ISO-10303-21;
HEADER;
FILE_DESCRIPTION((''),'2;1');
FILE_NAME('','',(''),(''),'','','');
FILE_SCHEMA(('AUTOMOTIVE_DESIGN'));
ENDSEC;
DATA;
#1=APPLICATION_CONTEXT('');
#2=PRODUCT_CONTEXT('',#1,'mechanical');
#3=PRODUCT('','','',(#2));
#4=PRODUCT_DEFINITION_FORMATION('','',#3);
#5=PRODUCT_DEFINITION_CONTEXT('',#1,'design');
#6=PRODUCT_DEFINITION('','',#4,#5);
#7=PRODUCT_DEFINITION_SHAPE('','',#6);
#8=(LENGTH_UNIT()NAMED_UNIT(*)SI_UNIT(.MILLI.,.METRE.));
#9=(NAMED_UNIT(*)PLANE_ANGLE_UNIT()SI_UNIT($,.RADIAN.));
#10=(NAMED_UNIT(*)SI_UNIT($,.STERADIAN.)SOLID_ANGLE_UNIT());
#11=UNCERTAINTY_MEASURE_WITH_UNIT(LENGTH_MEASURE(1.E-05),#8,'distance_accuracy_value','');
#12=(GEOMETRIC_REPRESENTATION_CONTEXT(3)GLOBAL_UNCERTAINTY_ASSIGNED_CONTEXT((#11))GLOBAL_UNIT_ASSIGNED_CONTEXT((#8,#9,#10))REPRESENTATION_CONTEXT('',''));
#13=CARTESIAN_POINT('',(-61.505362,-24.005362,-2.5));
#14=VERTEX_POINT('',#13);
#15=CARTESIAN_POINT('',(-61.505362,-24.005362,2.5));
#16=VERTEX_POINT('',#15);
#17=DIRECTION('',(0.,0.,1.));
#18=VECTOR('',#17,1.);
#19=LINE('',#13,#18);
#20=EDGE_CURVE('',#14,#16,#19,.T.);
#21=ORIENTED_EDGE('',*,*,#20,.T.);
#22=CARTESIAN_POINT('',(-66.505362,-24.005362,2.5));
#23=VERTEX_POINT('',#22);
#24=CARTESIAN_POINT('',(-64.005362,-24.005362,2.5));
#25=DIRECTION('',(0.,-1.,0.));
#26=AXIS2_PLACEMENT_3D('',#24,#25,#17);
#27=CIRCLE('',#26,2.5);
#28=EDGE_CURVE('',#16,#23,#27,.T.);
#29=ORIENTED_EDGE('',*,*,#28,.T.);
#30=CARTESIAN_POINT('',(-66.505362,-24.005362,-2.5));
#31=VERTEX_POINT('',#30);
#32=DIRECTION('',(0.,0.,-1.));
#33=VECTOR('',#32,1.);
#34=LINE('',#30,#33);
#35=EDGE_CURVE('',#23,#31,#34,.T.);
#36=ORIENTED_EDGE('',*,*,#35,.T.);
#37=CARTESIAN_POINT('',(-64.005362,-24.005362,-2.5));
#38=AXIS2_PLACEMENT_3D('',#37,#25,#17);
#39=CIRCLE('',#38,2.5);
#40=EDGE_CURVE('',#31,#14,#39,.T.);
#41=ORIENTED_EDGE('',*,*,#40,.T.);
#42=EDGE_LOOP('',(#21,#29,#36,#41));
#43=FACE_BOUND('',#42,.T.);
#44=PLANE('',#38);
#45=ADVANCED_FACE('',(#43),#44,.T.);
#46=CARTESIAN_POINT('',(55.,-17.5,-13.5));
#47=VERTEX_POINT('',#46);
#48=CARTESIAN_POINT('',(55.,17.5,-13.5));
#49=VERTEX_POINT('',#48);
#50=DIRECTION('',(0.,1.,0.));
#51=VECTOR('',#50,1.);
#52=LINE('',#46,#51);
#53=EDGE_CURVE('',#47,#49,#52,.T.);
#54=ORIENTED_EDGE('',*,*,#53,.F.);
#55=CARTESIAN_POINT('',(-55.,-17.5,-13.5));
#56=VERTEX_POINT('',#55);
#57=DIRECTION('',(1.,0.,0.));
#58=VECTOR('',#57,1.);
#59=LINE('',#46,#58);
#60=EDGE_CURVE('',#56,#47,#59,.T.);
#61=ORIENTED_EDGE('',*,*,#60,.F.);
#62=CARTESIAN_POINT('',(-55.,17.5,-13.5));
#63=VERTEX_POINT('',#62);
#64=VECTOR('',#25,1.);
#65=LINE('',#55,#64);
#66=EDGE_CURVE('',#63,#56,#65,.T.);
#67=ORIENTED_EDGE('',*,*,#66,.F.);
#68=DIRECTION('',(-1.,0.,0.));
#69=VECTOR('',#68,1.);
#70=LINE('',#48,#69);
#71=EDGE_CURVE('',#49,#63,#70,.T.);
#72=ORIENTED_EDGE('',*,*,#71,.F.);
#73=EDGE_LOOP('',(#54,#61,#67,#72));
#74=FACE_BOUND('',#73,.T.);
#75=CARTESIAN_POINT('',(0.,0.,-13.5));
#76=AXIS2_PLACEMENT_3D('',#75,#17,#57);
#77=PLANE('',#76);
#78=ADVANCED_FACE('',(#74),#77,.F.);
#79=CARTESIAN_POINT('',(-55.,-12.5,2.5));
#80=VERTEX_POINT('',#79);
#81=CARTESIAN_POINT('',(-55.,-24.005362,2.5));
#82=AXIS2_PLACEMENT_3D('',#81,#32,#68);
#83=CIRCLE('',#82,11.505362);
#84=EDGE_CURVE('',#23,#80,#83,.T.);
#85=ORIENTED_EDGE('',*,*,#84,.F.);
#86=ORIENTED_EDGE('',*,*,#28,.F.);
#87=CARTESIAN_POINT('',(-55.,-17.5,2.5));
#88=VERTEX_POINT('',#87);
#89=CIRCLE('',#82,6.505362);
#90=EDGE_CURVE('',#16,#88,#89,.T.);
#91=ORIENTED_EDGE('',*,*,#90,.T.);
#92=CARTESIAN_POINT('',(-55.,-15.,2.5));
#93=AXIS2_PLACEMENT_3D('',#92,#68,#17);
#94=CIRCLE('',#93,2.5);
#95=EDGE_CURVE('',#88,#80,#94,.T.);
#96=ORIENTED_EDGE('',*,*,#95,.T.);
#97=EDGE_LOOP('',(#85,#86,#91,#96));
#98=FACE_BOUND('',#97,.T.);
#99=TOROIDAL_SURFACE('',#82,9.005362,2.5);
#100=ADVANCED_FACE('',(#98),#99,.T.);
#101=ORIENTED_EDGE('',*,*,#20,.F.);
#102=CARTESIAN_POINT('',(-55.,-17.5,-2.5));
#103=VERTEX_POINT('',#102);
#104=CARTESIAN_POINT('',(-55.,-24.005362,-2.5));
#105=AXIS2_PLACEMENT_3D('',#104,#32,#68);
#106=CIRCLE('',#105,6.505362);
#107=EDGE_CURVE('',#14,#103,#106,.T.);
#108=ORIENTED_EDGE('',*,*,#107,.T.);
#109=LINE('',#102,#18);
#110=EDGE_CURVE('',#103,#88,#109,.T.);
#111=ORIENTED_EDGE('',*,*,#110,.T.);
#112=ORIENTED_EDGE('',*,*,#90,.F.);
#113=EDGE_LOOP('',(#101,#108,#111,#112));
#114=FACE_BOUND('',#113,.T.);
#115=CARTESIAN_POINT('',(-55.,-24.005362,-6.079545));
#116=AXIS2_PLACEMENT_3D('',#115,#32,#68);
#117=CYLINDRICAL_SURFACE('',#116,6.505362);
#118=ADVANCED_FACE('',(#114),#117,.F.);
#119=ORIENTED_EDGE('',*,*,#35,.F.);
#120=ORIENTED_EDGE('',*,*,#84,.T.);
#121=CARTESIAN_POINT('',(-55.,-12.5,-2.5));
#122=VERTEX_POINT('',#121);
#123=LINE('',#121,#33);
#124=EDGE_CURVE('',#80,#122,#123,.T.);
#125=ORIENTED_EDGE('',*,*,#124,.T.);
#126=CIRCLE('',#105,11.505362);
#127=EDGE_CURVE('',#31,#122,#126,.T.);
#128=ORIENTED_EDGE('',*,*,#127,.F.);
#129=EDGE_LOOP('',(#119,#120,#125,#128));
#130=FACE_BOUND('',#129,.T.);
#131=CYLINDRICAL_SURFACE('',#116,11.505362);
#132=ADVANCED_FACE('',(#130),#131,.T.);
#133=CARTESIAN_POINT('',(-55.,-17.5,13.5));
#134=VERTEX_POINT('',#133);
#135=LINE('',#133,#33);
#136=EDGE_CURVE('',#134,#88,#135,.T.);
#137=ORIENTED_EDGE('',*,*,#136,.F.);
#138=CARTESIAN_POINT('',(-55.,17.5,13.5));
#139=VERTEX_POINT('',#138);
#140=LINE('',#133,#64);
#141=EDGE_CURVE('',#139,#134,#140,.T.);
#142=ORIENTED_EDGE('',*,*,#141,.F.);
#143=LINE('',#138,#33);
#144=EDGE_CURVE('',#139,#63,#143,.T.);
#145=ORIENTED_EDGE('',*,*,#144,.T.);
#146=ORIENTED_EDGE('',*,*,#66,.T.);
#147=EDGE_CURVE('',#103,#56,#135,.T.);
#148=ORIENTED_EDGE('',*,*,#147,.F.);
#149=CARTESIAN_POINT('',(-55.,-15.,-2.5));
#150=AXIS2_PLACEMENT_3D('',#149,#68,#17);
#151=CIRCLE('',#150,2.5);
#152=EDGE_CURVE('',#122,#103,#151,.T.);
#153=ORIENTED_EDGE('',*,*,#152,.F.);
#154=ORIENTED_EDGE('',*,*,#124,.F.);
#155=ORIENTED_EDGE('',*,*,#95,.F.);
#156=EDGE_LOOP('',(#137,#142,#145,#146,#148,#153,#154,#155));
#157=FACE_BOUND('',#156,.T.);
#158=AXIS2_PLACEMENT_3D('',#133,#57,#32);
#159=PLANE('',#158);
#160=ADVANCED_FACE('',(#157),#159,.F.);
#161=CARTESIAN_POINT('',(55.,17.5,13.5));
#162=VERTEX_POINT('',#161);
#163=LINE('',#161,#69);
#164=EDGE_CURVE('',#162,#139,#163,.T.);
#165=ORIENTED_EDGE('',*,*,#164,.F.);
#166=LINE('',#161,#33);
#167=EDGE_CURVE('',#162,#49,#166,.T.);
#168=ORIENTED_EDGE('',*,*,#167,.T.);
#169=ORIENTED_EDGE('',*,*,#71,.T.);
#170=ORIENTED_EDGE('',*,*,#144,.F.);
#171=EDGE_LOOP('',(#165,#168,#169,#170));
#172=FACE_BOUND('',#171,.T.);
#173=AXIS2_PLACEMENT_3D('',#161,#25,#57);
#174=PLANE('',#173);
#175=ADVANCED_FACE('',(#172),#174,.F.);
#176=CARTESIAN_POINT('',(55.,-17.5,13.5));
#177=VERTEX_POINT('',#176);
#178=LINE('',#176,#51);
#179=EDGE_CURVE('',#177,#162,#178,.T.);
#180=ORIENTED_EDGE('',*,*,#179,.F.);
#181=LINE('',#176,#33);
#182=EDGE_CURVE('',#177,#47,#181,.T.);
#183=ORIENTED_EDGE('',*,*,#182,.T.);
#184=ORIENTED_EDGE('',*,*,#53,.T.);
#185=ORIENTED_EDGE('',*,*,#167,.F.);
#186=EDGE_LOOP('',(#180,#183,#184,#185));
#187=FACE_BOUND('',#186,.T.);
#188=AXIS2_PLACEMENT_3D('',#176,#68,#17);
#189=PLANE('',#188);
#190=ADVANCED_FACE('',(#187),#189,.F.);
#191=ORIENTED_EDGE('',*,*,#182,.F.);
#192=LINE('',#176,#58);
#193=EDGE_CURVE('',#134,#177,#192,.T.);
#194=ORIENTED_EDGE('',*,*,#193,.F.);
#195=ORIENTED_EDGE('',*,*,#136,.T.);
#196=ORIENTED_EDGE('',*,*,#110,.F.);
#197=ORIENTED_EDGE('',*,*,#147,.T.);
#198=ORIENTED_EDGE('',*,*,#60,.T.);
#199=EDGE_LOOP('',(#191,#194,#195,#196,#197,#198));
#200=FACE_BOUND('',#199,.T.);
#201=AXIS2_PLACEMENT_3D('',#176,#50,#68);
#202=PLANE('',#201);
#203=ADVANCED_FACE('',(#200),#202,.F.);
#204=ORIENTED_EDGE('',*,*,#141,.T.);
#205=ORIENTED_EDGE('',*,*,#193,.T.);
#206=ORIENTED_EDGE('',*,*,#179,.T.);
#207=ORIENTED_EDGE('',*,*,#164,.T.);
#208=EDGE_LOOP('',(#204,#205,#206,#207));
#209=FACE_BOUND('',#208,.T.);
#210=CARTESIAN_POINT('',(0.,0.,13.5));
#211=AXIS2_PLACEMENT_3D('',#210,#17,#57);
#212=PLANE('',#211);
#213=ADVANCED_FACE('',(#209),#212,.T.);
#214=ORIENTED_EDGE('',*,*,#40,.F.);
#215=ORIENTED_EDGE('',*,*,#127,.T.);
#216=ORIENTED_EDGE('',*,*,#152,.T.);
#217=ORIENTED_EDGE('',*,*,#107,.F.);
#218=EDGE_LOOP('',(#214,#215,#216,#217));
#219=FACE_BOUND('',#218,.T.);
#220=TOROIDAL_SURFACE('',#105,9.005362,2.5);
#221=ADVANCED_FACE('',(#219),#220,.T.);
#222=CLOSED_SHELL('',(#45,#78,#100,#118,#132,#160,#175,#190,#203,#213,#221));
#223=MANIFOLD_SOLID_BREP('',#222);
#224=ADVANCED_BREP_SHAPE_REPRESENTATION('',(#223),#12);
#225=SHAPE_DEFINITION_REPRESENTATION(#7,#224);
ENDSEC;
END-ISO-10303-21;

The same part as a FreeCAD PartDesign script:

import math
import FreeCAD as App
import Part
import Sketcher

V = App.Vector

doc = App.newDocument("Part")
body = doc.addObject("PartDesign::Body", "Body")

sketch1 = body.newObject("Sketcher::SketchObject", "Sketch")
sketch1.AttachmentSupport = (doc.getObject("XY_Plane"), [""])
sketch1.MapMode = "FlatFace"
sketch1.addGeometry(Part.LineSegment(V(-55, 18, 0), V(-55, -18, 0)), False)
sketch1.addGeometry(Part.LineSegment(V(-55, -18, 0), V(55, -18, 0)), False)
sketch1.addGeometry(Part.LineSegment(V(55, -18, 0), V(55, 18, 0)), False)
sketch1.addGeometry(Part.LineSegment(V(55, 18, 0), V(-55, 18, 0)), False)
sketch1.addConstraint(Sketcher.Constraint("Coincident", 0, 2, 1, 1))
sketch1.addConstraint(Sketcher.Constraint("Coincident", 1, 2, 2, 1))
sketch1.addConstraint(Sketcher.Constraint("Coincident", 2, 2, 3, 1))
sketch1.addConstraint(Sketcher.Constraint("Coincident", 3, 2, 0, 1))
sketch1.addConstraint(Sketcher.Constraint("Vertical", 0))
sketch1.addConstraint(Sketcher.Constraint("Horizontal", 1))
sketch1.addConstraint(Sketcher.Constraint("Vertical", 2))
sketch1.addConstraint(Sketcher.Constraint("Horizontal", 3))
sketch1.addConstraint(Sketcher.Constraint("Symmetric", 0, 2, 2, 2, -1, 1))
sketch1.addConstraint(Sketcher.Constraint("DistanceX", 1, 1, 1, 2, 110.0))
sketch1.addConstraint(Sketcher.Constraint("DistanceY", 0, 2, 0, 1, 35.0))
pad1 = body.newObject("PartDesign::Pad", "Pad")
pad1.Profile = sketch1
pad1.Length = 27
pad1.Midplane = True

sketch2 = body.newObject("Sketcher::SketchObject", "Sketch001")
sketch2.AttachmentSupport = (doc.getObject("YZ_Plane"), [""])
sketch2.MapMode = "FlatFace"
sketch2.AttachmentOffset = App.Placement(V(0, 0, -55), App.Rotation())
sketch2.addGeometry(Part.LineSegment(V(-12.5, 2.5, 0), V(-12.5, -2.5, 0)), False)
sketch2.addGeometry(Part.ArcOfCircle(Part.Circle(V(-15, -2.5, 0), V(0, 0, 1), 2.5), math.radians(180), math.radians(360)), False)
sketch2.addGeometry(Part.LineSegment(V(-17.5, -2.5, 0), V(-17.5, 2.5, 0)), False)
sketch2.addGeometry(Part.ArcOfCircle(Part.Circle(V(-15, 2.5, 0), V(0, 0, 1), 2.5), math.radians(0), math.radians(180)), False)
sketch2.addGeometry(Part.LineSegment(V(-24, -2.5, 0), V(-24, 2.5, 0)), True)
sketch2.addConstraint(Sketcher.Constraint("Tangent", 0, 2, 1, 2))
sketch2.addConstraint(Sketcher.Constraint("Tangent", 1, 1, 2, 1))
sketch2.addConstraint(Sketcher.Constraint("Tangent", 2, 2, 3, 2))
sketch2.addConstraint(Sketcher.Constraint("Tangent", 3, 1, 0, 1))
sketch2.addConstraint(Sketcher.Constraint("Vertical", 0))
sketch2.addConstraint(Sketcher.Constraint("Vertical", 2))
sketch2.addConstraint(Sketcher.Constraint("Vertical", 4))
sketch2.addConstraint(Sketcher.Constraint("Horizontal", 1, 1, 4, 1))
sketch2.addConstraint(Sketcher.Constraint("Horizontal", 3, 1, 4, 2))
sketch2.addConstraint(Sketcher.Constraint("Radius", 1, 2.5))
sketch2.addConstraint(Sketcher.Constraint("DistanceY", 0, 2, 0, 1, 5.0))
sketch2.addConstraint(Sketcher.Constraint("DistanceX", 1, 3, -1, 1, 15.0))
sketch2.addConstraint(Sketcher.Constraint("DistanceY", 1, 3, -1, 1, 2.5))
sketch2.addConstraint(Sketcher.Constraint("DistanceX", 4, 1, -1, 1, 24.005362))
revolution = body.newObject("PartDesign::Revolution", "Revolution")
revolution.Profile = sketch2
revolution.ReferenceAxis = (sketch2, ["Axis0"])
revolution.Angle = 90

doc.recompute()
